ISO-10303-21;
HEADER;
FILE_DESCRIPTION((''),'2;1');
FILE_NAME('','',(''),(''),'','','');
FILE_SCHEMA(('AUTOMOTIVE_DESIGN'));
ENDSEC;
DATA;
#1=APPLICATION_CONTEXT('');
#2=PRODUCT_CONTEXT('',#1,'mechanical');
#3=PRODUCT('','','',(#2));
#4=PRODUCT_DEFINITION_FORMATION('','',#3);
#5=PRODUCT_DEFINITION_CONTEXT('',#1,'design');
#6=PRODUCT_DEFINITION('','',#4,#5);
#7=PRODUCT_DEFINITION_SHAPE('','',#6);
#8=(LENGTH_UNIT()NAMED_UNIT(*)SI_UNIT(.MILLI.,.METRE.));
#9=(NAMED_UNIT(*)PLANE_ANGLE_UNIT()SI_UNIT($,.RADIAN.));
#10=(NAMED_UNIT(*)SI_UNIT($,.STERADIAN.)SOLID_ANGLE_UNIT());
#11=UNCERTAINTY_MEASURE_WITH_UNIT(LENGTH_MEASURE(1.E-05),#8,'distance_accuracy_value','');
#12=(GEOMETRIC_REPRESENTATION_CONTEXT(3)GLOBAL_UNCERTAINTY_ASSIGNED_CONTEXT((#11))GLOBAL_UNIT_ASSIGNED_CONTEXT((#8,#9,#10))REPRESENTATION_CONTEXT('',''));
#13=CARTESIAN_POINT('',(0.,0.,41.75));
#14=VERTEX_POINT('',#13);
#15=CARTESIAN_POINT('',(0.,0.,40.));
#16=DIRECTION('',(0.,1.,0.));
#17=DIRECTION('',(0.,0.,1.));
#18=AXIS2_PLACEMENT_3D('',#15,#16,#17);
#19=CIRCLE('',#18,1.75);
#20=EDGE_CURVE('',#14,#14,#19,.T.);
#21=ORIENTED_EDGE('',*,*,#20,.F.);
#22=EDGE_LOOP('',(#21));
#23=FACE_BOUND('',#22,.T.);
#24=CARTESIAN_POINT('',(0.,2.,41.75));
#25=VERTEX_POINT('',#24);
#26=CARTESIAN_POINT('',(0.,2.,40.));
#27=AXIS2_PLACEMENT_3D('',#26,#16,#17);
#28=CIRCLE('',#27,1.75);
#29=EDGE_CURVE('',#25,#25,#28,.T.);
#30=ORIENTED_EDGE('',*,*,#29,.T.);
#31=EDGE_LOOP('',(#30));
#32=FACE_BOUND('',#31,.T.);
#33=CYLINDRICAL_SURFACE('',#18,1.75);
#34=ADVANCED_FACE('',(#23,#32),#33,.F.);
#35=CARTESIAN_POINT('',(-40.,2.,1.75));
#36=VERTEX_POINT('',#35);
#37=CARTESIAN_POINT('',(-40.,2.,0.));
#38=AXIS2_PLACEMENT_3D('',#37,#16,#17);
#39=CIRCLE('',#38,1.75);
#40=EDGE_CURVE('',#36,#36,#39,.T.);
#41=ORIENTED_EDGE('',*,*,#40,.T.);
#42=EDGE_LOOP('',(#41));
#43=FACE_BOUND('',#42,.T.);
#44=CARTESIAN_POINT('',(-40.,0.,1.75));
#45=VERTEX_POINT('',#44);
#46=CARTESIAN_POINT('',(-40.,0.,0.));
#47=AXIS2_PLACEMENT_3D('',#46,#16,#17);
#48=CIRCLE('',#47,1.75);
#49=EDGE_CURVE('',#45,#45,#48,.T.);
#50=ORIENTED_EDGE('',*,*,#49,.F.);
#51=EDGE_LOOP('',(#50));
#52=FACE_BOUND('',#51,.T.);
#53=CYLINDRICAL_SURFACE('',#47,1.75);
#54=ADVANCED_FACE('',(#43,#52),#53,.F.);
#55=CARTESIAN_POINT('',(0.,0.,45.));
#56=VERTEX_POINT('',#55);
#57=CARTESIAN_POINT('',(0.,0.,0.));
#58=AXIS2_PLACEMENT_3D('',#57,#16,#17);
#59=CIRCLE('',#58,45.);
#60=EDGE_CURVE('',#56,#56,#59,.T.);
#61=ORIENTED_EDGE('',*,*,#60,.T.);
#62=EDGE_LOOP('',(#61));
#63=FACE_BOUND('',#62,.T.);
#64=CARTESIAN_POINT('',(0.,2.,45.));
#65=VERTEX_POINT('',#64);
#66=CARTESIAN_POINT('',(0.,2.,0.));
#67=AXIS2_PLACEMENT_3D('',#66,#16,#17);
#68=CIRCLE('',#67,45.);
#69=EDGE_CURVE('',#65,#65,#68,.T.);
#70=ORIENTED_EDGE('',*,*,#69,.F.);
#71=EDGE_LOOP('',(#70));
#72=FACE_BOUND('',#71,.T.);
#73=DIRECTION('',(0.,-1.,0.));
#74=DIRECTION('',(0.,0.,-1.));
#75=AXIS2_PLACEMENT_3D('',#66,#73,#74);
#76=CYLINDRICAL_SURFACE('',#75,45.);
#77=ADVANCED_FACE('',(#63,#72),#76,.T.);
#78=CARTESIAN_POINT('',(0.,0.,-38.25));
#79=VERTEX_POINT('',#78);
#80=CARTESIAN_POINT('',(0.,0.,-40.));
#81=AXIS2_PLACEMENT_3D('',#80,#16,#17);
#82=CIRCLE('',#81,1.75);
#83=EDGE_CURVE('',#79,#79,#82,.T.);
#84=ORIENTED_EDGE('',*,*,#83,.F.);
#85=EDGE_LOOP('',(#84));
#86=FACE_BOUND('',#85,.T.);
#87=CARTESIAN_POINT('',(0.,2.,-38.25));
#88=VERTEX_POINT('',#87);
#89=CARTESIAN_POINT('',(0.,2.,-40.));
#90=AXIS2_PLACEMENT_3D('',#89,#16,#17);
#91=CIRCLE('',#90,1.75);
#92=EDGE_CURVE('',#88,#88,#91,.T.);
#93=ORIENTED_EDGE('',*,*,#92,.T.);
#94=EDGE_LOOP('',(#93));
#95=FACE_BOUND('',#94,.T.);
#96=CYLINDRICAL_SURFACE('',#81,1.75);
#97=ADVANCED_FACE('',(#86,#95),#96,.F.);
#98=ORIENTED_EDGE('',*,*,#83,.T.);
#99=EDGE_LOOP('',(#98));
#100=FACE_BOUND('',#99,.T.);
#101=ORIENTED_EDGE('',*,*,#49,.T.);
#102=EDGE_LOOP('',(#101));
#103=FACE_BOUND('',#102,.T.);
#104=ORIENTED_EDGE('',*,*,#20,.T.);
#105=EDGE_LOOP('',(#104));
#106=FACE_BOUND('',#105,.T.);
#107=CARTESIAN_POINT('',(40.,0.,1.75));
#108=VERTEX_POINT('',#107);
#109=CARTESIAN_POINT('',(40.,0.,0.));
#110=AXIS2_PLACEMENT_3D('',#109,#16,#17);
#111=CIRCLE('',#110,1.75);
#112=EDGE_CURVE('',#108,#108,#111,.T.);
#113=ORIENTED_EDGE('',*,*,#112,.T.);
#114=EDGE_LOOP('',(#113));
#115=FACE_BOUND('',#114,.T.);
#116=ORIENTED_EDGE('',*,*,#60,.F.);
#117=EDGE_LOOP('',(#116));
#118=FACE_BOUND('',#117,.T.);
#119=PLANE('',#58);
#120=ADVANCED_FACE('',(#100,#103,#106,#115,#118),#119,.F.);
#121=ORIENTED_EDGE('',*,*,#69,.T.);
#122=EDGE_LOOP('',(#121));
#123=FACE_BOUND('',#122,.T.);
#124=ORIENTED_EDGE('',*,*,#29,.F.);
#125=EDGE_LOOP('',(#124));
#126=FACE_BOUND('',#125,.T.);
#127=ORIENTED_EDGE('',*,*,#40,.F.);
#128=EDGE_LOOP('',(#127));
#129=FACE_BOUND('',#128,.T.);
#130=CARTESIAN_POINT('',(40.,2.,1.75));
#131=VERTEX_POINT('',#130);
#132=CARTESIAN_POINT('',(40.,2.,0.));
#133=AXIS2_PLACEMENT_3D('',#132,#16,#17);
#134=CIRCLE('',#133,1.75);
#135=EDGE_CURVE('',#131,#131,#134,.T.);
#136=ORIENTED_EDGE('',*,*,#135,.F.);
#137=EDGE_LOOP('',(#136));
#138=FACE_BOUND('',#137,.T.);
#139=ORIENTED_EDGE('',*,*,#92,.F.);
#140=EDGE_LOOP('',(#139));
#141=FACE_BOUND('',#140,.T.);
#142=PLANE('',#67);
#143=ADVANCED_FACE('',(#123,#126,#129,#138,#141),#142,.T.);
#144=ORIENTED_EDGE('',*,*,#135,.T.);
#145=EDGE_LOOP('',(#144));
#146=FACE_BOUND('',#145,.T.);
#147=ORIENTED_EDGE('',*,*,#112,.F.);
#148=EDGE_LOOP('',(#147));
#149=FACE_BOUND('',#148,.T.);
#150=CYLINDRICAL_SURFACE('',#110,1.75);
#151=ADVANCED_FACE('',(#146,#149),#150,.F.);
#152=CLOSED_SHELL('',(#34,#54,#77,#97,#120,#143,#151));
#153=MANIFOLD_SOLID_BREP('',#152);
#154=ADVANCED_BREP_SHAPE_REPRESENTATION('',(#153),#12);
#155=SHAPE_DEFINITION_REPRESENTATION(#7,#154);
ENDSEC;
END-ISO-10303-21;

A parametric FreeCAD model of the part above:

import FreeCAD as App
import Part
import Sketcher

V = App.Vector

doc = App.newDocument("Part")
params = doc.addObject("Spreadsheet::Sheet", "Params")
for row, (alias, value) in enumerate([
    ("sketch1_diameter", "90 mm"),
    ("pad1_length", "2 mm"),
    ("sketch2_diameter", "3.5 mm"),
], start=1):
    params.set(f"A{row}", alias)
    params.set(f"B{row}", "=" + value)
    params.setAlias(f"B{row}", alias)

body = doc.addObject("PartDesign::Body", "Body")

# Sketch on XZ plane
sketch1 = doc.addObject("Sketcher::SketchObject", "Sketch")
body.addObject(sketch1)
sketch1.AttachmentSupport = (doc.XZ_Plane, [""])
sketch1.MapMode = "FlatFace"
sketch1.addGeometry(Part.Circle(V(0, 0, 0), V(0, 0, 1), 45), False)
sketch1.addConstraint(Sketcher.Constraint("Coincident", 0, 3, -1, 1))
sketch1.addConstraint(Sketcher.Constraint("Diameter", 0, 90.0))
sketch1.setExpression("Constraints[1]", "Params.sketch1_diameter")
pad1 = doc.addObject("PartDesign::Pad", "Pad")
body.addObject(pad1)
pad1.Profile = sketch1
pad1.setExpression("Length", "Params.pad1_length")
pad1.Reversed = True

# Sketch on XZ plane
sketch2 = doc.addObject("Sketcher::SketchObject", "Sketch001")
body.addObject(sketch2)
sketch2.AttachmentSupport = (doc.XZ_Plane, [""])
sketch2.MapMode = "FlatFace"
sketch2.AttachmentOffset = App.Placement(V(0, 0, -2), App.Rotation())
sketch2.addGeometry(Part.Circle(V(0, -40, 0), V(0, 0, 1), 1.75), False)
sketch2.addGeometry(Part.Circle(V(40, 0, 0), V(0, 0, 1), 1.75), False)
sketch2.addGeometry(Part.Circle(V(0, 40, 0), V(0, 0, 1), 1.75), False)
sketch2.addGeometry(Part.Circle(V(-40, 0, 0), V(0, 0, 1), 1.75), False)
sketch2.addConstraint(Sketcher.Constraint("Equal", 0, 1))
sketch2.addConstraint(Sketcher.Constraint("Equal", 1, 2))
sketch2.addConstraint(Sketcher.Constraint("Equal", 2, 3))
sketch2.addConstraint(Sketcher.Constraint("Symmetric", 0, 3, 2, 3, -1, 1))
sketch2.addConstraint(Sketcher.Constraint("Symmetric", 1, 3, 3, 3, -1, 1))
sketch2.addConstraint(Sketcher.Constraint("PointOnObject", 0, 3, -2))
sketch2.addConstraint(Sketcher.Constraint("PointOnObject", 1, 3, -1))
sketch2.addConstraint(Sketcher.Constraint("Diameter", 0, 3.5))
sketch2.addConstraint(Sketcher.Constraint("DistanceY", 0, 3, -1, 1, 40.0))
sketch2.addConstraint(Sketcher.Constraint("DistanceX", -1, 1, 1, 3, 40.0))
sketch2.setExpression("Constraints[7]", "Params.sketch2_diameter")
pocket1 = doc.addObject("PartDesign::Pocket", "Pocket")
body.addObject(pocket1)
pocket1.Profile = sketch2
pocket1.Type = "ThroughAll"
pocket1.Reversed = True

doc.recompute()
